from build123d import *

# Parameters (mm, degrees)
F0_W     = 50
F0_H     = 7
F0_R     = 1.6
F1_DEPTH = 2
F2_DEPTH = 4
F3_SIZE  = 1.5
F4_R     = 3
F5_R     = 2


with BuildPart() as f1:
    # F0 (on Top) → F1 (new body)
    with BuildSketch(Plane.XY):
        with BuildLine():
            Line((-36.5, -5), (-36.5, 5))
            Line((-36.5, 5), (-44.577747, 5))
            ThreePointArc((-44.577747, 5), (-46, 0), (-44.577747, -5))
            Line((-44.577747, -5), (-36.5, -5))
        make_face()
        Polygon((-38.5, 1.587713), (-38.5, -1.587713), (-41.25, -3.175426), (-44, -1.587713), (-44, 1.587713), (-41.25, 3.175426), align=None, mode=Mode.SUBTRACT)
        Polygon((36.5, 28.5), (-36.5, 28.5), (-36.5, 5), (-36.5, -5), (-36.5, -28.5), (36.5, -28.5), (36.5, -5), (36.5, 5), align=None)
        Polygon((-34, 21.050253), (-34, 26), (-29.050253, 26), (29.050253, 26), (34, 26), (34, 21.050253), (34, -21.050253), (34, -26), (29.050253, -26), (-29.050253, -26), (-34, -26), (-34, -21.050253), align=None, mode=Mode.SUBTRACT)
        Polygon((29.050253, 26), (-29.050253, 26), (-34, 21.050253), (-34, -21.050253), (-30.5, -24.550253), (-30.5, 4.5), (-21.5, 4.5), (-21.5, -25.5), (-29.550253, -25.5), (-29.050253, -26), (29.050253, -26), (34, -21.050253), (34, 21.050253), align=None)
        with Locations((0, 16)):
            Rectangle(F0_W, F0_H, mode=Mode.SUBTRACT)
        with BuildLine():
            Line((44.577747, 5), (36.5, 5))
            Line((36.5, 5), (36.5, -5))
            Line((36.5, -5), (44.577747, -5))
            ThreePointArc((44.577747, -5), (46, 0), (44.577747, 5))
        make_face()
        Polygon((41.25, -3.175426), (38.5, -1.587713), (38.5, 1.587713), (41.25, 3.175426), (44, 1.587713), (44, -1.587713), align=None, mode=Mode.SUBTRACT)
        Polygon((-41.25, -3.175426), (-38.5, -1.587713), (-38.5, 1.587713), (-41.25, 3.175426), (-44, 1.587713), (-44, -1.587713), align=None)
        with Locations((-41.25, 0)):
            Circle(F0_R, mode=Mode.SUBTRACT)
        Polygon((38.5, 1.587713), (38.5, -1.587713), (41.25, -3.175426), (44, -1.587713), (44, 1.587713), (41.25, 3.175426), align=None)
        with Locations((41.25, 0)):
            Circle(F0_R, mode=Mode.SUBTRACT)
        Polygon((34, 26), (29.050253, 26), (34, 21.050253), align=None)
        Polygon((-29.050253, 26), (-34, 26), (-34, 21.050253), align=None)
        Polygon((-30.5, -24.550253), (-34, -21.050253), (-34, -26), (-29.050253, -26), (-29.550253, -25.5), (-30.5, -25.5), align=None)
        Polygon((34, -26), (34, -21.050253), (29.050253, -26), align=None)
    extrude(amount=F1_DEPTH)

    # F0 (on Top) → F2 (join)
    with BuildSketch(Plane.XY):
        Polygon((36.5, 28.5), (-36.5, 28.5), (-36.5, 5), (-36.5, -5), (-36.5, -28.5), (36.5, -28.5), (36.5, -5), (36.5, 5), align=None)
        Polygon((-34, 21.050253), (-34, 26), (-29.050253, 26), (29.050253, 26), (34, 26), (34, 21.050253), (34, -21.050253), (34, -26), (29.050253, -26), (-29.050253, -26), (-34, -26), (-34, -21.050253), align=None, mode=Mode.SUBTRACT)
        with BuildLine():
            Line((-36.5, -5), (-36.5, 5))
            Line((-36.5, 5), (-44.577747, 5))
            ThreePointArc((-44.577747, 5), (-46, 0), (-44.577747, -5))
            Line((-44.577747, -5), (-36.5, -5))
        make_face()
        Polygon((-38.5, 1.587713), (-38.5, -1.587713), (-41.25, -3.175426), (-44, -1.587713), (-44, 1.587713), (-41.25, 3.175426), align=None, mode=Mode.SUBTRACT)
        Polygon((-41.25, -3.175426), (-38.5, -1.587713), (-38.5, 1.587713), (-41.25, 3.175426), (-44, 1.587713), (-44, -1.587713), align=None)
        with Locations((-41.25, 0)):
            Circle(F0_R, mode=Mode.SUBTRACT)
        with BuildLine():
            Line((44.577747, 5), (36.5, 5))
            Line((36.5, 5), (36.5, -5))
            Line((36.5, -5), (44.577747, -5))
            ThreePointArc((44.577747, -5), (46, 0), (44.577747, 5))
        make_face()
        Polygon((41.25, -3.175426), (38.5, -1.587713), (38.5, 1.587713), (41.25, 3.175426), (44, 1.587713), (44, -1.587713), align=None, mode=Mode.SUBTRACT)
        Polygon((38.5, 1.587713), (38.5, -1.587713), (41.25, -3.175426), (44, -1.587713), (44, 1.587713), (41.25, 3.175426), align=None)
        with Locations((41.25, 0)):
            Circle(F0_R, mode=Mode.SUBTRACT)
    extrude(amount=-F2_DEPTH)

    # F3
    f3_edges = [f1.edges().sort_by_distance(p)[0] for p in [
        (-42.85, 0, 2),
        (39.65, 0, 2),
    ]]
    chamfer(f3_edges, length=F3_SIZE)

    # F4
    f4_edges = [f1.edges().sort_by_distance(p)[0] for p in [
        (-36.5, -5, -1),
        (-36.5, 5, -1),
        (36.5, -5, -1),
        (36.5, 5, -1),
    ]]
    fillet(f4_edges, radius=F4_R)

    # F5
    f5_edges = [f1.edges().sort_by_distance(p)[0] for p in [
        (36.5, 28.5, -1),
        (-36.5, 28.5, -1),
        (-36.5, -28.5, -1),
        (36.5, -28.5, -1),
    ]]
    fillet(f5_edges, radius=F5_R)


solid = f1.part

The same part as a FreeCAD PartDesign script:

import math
import FreeCAD as App
import Part
import Sketcher


def edges_at(feature, points):
    """Names of the edges that pass closest to the given points."""
    edges = feature.Shape.Edges
    near = lambda p: min(range(len(edges)), key=lambda i: edges[i].distToShape(Part.Vertex(*p))[0])
    return sorted({f"Edge{near(p) + 1}" for p in points})


def add_polygon(sketch, points):
    """Adds a closed chain of lines whose ends are joined by coincident constraints."""
    first, n = sketch.GeometryCount, len(points)
    for a, b in zip(points, points[1:] + points[:1]):
        sketch.addGeometry(Part.LineSegment(App.Vector(*a, 0), App.Vector(*b, 0)), False)
    for i in range(n):
        sketch.addConstraint(Sketcher.Constraint("Coincident", first + i, 2, first + (i + 1) % n, 1))

doc = App.newDocument("Part")
params = doc.addObject("Spreadsheet::Sheet", "Params")
for row, (alias, value) in enumerate([
    ("sketch1_diameter", "3.2 mm"),
    ("sketch1_radius", "9.499999 mm"),
    ("sketch1_width", "73 mm"),
    ("sketch1_width2", "9 mm"),
    ("sketch1_width3", "50 mm"),
    ("pad1_length", "2 mm"),
    ("sketch2_diameter", "3.2 mm"),
    ("sketch2_radius", "9.499999 mm"),
    ("sketch2_width", "73 mm"),
    ("sketch2_width2", "68 mm"),
    ("sketch2_height", "52 mm"),
    ("pad2_length", "4 mm"),
    ("chamfer_size", "1.5 mm"),
    ("fillet_radius", "3 mm"),
    ("fillet2_radius", "2 mm"),
], start=1):
    params.set(f"A{row}", alias)
    params.set(f"B{row}", "=" + value)
    params.setAlias(f"B{row}", alias)

body = doc.addObject("PartDesign::Body", "Body")

# Sketch on XY plane
sketch1 = doc.addObject("Sketcher::SketchObject", "Sketch")
body.addObject(sketch1)
sketch1.AttachmentSupport = (doc.XY_Plane, [""])
sketch1.MapMode = "FlatFace"
sketch1.addGeometry(Part.LineSegment(App.Vector(-44.6, -5, 0), App.Vector(-36.5, -5, 0)), False)  # 0
sketch1.addGeometry(Part.LineSegment(App.Vector(-36.5, -5, 0), App.Vector(-36.5, -28.5, 0)), False)  # 1
sketch1.addGeometry(Part.LineSegment(App.Vector(-36.5, -28.5, 0), App.Vector(36.5, -28.5, 0)), False)  # 2
sketch1.addGeometry(Part.LineSegment(App.Vector(36.5, -28.5, 0), App.Vector(36.5, -5, 0)), False)  # 3
sketch1.addGeometry(Part.LineSegment(App.Vector(36.5, -5, 0), App.Vector(44.6, -5, 0)), False)  # 4
sketch1.addGeometry(Part.ArcOfCircle(Part.Circle(App.Vector(36.5, 0, 0), App.Vector(0, 0, 1), 9.5), math.radians(-32), math.radians(32)), False)  # 5
sketch1.addGeometry(Part.LineSegment(App.Vector(44.6, 5, 0), App.Vector(36.5, 5, 0)), False)  # 6
sketch1.addGeometry(Part.LineSegment(App.Vector(36.5, 5, 0), App.Vector(36.5, 28.5, 0)), False)  # 7
sketch1.addGeometry(Part.LineSegment(App.Vector(36.5, 28.5, 0), App.Vector(-36.5, 28.5, 0)), False)  # 8
sketch1.addGeometry(Part.LineSegment(App.Vector(-36.5, 28.5, 0), App.Vector(-36.5, 5, 0)), False)  # 9
sketch1.addGeometry(Part.LineSegment(App.Vector(-36.5, 5, 0), App.Vector(-44.6, 5, 0)), False)  # 10
sketch1.addGeometry(Part.ArcOfCircle(Part.Circle(App.Vector(-36.5, 0, 0), App.Vector(0, 0, 1), 9.5), math.radians(148), math.radians(212)), False)  # 11
add_polygon(sketch1, [(-30.5, 4.5), (-21.5, 4.5), (-21.5, -25.5), (-30.5, -25.5)])  # lines 12-15
sketch1.addGeometry(Part.Circle(App.Vector(-41.2, 0, 0), App.Vector(0, 0, 1), 1.6), False)  # 16
sketch1.addGeometry(Part.Circle(App.Vector(41.2, 0, 0), App.Vector(0, 0, 1), 1.6), False)  # 17
add_polygon(sketch1, [(25, 12.5), (-25, 12.5), (-25, 19.5), (25, 19.5)])  # lines 18-21
sketch1.addConstraint(Sketcher.Constraint("Coincident", 0, 2, 1, 1))
sketch1.addConstraint(Sketcher.Constraint("Coincident", 1, 2, 2, 1))
sketch1.addConstraint(Sketcher.Constraint("Coincident", 2, 2, 3, 1))
sketch1.addConstraint(Sketcher.Constraint("Coincident", 3, 2, 4, 1))
sketch1.addConstraint(Sketcher.Constraint("Coincident", 4, 2, 5, 1))
sketch1.addConstraint(Sketcher.Constraint("Coincident", 5, 2, 6, 1))
sketch1.addConstraint(Sketcher.Constraint("Coincident", 6, 2, 7, 1))
sketch1.addConstraint(Sketcher.Constraint("Coincident", 7, 2, 8, 1))
sketch1.addConstraint(Sketcher.Constraint("Coincident", 8, 2, 9, 1))
sketch1.addConstraint(Sketcher.Constraint("Coincident", 9, 2, 10, 1))
sketch1.addConstraint(Sketcher.Constraint("Coincident", 10, 2, 11, 1))
sketch1.addConstraint(Sketcher.Constraint("Coincident", 11, 2, 0, 1))
sketch1.addConstraint(Sketcher.Constraint("Horizontal", 0))
sketch1.addConstraint(Sketcher.Constraint("Vertical", 1))
sketch1.addConstraint(Sketcher.Constraint("Horizontal", 2))
sketch1.addConstraint(Sketcher.Constraint("Vertical", 3))
sketch1.addConstraint(Sketcher.Constraint("Horizontal", 4))
sketch1.addConstraint(Sketcher.Constraint("Horizontal", 6))
sketch1.addConstraint(Sketcher.Constraint("Vertical", 7))
sketch1.addConstraint(Sketcher.Constraint("Horizontal", 8))
sketch1.addConstraint(Sketcher.Constraint("Vertical", 9))
sketch1.addConstraint(Sketcher.Constraint("Horizontal", 10))
sketch1.addConstraint(Sketcher.Constraint("Horizontal", 12))
sketch1.addConstraint(Sketcher.Constraint("Vertical", 13))
sketch1.addConstraint(Sketcher.Constraint("Horizontal", 14))
sketch1.addConstraint(Sketcher.Constraint("Vertical", 15))
sketch1.addConstraint(Sketcher.Constraint("Horizontal", 18))
sketch1.addConstraint(Sketcher.Constraint("Vertical", 19))
sketch1.addConstraint(Sketcher.Constraint("Horizontal", 20))
sketch1.addConstraint(Sketcher.Constraint("Vertical", 21))
sketch1.addConstraint(Sketcher.Constraint("Equal", 5, 11))
sketch1.addConstraint(Sketcher.Constraint("Equal", 16, 17))
sketch1.addConstraint(Sketcher.Constraint("Symmetric", 5, 3, 11, 3, -1, 1))
sketch1.addConstraint(Sketcher.Constraint("Symmetric", 16, 3, 17, 3, -1, 1))
sketch1.addConstraint(Sketcher.Constraint("Symmetric", 0, 2, 6, 2, -1, 1))
sketch1.addConstraint(Sketcher.Constraint("Symmetric", 2, 2, 8, 2, -1, 1))
sketch1.addConstraint(Sketcher.Constraint("Symmetric", 0, 2, 3, 2, -2))
sketch1.addConstraint(Sketcher.Constraint("Symmetric", 5, 2, 10, 2, -2))
sketch1.addConstraint(Sketcher.Constraint("PointOnObject", 16, 3, -1))
sketch1.addConstraint(Sketcher.Constraint("Vertical", 11, 3, 0, 2))
sketch1.addConstraint(Sketcher.Constraint("Diameter", 16, 3.2))
sketch1.addConstraint(Sketcher.Constraint("Radius", 5, 9.499999))
sketch1.addConstraint(Sketcher.Constraint("DistanceX", 2, 1, 2, 2, 73.0))
sketch1.addConstraint(Sketcher.Constraint("DistanceX", 12, 1, 12, 2, 9.0))
sketch1.addConstraint(Sketcher.Constraint("DistanceX", 18, 2, 18, 1, 50.0))
sketch1.addConstraint(Sketcher.Constraint("DistanceY", 13, 2, 13, 1, 30.0))
sketch1.addConstraint(Sketcher.Constraint("DistanceY", 19, 1, 19, 2, 7.0))
sketch1.addConstraint(Sketcher.Constraint("DistanceY", 1, 2, 1, 1, 23.5))
sketch1.addConstraint(Sketcher.Constraint("DistanceY", 0, 2, -1, 1, 5.0))
sketch1.addConstraint(Sketcher.Constraint("DistanceX", 18, 2, -1, 1, 25.0))
sketch1.addConstraint(Sketcher.Constraint("DistanceX", 9, 2, 12, 2, 15.0))
sketch1.addConstraint(Sketcher.Constraint("DistanceY", 1, 2, 13, 2, 3.0))
sketch1.addConstraint(Sketcher.Constraint("DistanceY", 12, 2, 18, 2, 8.0))
sketch1.addConstraint(Sketcher.Constraint("DistanceX", 16, 3, 17, 3, 82.5))
sketch1.setExpression("Constraints[48]", "Params.sketch1_diameter")
sketch1.setExpression("Constraints[49]", "Params.sketch1_radius")
sketch1.setExpression("Constraints[50]", "Params.sketch1_width")
sketch1.setExpression("Constraints[51]", "Params.sketch1_width2")
sketch1.setExpression("Constraints[52]", "Params.sketch1_width3")
pad1 = doc.addObject("PartDesign::Pad", "Pad")
body.addObject(pad1)
pad1.Profile = sketch1
pad1.setExpression("Length", "Params.pad1_length")

# Sketch on XY plane
sketch2 = doc.addObject("Sketcher::SketchObject", "Sketch001")
body.addObject(sketch2)
sketch2.AttachmentSupport = (doc.XY_Plane, [""])
sketch2.MapMode = "FlatFace"
sketch2.addGeometry(Part.LineSegment(App.Vector(36.5, 28.5, 0), App.Vector(-36.5, 28.5, 0)), False)  # 0
sketch2.addGeometry(Part.LineSegment(App.Vector(-36.5, 28.5, 0), App.Vector(-36.5, 5, 0)), False)  # 1
sketch2.addGeometry(Part.LineSegment(App.Vector(-36.5, 5, 0), App.Vector(-44.6, 5, 0)), False)  # 2
sketch2.addGeometry(Part.ArcOfCircle(Part.Circle(App.Vector(-36.5, 0, 0), App.Vector(0, 0, 1), 9.5), math.radians(148), math.radians(212)), False)  # 3
sketch2.addGeometry(Part.LineSegment(App.Vector(-44.6, -5, 0), App.Vector(-36.5, -5, 0)), False)  # 4
sketch2.addGeometry(Part.LineSegment(App.Vector(-36.5, -5, 0), App.Vector(-36.5, -28.5, 0)), False)  # 5
sketch2.addGeometry(Part.LineSegment(App.Vector(-36.5, -28.5, 0), App.Vector(36.5, -28.5, 0)), False)  # 6
sketch2.addGeometry(Part.LineSegment(App.Vector(36.5, -28.5, 0), App.Vector(36.5, -5, 0)), False)  # 7
sketch2.addGeometry(Part.LineSegment(App.Vector(36.5, -5, 0), App.Vector(44.6, -5, 0)), False)  # 8
sketch2.addGeometry(Part.ArcOfCircle(Part.Circle(App.Vector(36.5, 0, 0), App.Vector(0, 0, 1), 9.5), math.radians(-32), math.radians(32)), False)  # 9
sketch2.addGeometry(Part.LineSegment(App.Vector(44.6, 5, 0), App.Vector(36.5, 5, 0)), False)  # 10
sketch2.addGeometry(Part.LineSegment(App.Vector(36.5, 5, 0), App.Vector(36.5, 28.5, 0)), False)  # 11
sketch2.addGeometry(Part.Circle(App.Vector(-41.2, 0, 0), App.Vector(0, 0, 1), 1.6), False)  # 12
add_polygon(sketch2, [(-34, -26), (-34, 26), (34, 26), (34, -26)])  # lines 13-16
sketch2.addGeometry(Part.Circle(App.Vector(41.2, 0, 0), App.Vector(0, 0, 1), 1.6), False)  # 17
sketch2.addConstraint(Sketcher.Constraint("Coincident", 0, 2, 1, 1))
sketch2.addConstraint(Sketcher.Constraint("Coincident", 1, 2, 2, 1))
sketch2.addConstraint(Sketcher.Constraint("Coincident", 2, 2, 3, 1))
sketch2.addConstraint(Sketcher.Constraint("Coincident", 3, 2, 4, 1))
sketch2.addConstraint(Sketcher.Constraint("Coincident", 4, 2, 5, 1))
sketch2.addConstraint(Sketcher.Constraint("Coincident", 5, 2, 6, 1))
sketch2.addConstraint(Sketcher.Constraint("Coincident", 6, 2, 7, 1))
sketch2.addConstraint(Sketcher.Constraint("Coincident", 7, 2, 8, 1))
sketch2.addConstraint(Sketcher.Constraint("Coincident", 8, 2, 9, 1))
sketch2.addConstraint(Sketcher.Constraint("Coincident", 9, 2, 10, 1))
sketch2.addConstraint(Sketcher.Constraint("Coincident", 10, 2, 11, 1))
sketch2.addConstraint(Sketcher.Constraint("Coincident", 11, 2, 0, 1))
sketch2.addConstraint(Sketcher.Constraint("Horizontal", 0))
sketch2.addConstraint(Sketcher.Constraint("Vertical", 1))
sketch2.addConstraint(Sketcher.Constraint("Horizontal", 2))
sketch2.addConstraint(Sketcher.Constraint("Horizontal", 4))
sketch2.addConstraint(Sketcher.Constraint("Vertical", 5))
sketch2.addConstraint(Sketcher.Constraint("Horizontal", 6))
sketch2.addConstraint(Sketcher.Constraint("Vertical", 7))
sketch2.addConstraint(Sketcher.Constraint("Horizontal", 8))
sketch2.addConstraint(Sketcher.Constraint("Horizontal", 10))
sketch2.addConstraint(Sketcher.Constraint("Vertical", 11))
sketch2.addConstraint(Sketcher.Constraint("Vertical", 13))
sketch2.addConstraint(Sketcher.Constraint("Horizontal", 14))
sketch2.addConstraint(Sketcher.Constraint("Vertical", 15))
sketch2.addConstraint(Sketcher.Constraint("Horizontal", 16))
sketch2.addConstraint(Sketcher.Constraint("Equal", 3, 9))
sketch2.addConstraint(Sketcher.Constraint("Equal", 12, 17))
sketch2.addConstraint(Sketcher.Constraint("Symmetric", 3, 3, 9, 3, -1, 1))
sketch2.addConstraint(Sketcher.Constraint("Symmetric", 12, 3, 17, 3, -1, 1))
sketch2.addConstraint(Sketcher.Constraint("Symmetric", 0, 2, 6, 2, -1, 1))
sketch2.addConstraint(Sketcher.Constraint("Symmetric", 4, 2, 10, 2, -1, 1))
sketch2.addConstraint(Sketcher.Constraint("Symmetric", 13, 2, 15, 2, -1, 1))
sketch2.addConstraint(Sketcher.Constraint("Symmetric", 4, 2, 7, 2, -2))
sketch2.addConstraint(Sketcher.Constraint("Symmetric", 2, 2, 9, 2, -2))
sketch2.addConstraint(Sketcher.Constraint("PointOnObject", 12, 3, -1))
sketch2.addConstraint(Sketcher.Constraint("Vertical", 3, 3, 0, 2))
sketch2.addConstraint(Sketcher.Constraint("Diameter", 12, 3.2))
sketch2.addConstraint(Sketcher.Constraint("Radius", 3, 9.499999))
sketch2.addConstraint(Sketcher.Constraint("DistanceX", 0, 2, 0, 1, 73.0))
sketch2.addConstraint(Sketcher.Constraint("DistanceX", 14, 1, 14, 2, 68.0))
sketch2.addConstraint(Sketcher.Constraint("DistanceY", 13, 1, 13, 2, 52.0))
sketch2.addConstraint(Sketcher.Constraint("DistanceY", 1, 2, 1, 1, 23.5))
sketch2.addConstraint(Sketcher.Constraint("DistanceY", -1, 1, 1, 2, 5.0))
sketch2.addConstraint(Sketcher.Constraint("DistanceX", 12, 3, 17, 3, 82.5))
sketch2.setExpression("Constraints[41]", "Params.sketch2_diameter")
sketch2.setExpression("Constraints[42]", "Params.sketch2_radius")
sketch2.setExpression("Constraints[43]", "Params.sketch2_width")
sketch2.setExpression("Constraints[44]", "Params.sketch2_width2")
sketch2.setExpression("Constraints[45]", "Params.sketch2_height")
pad2 = doc.addObject("PartDesign::Pad", "Pad001")
body.addObject(pad2)
pad2.Profile = sketch2
pad2.setExpression("Length", "Params.pad2_length")
pad2.Reversed = True
doc.recompute()

chamfer = doc.addObject("PartDesign::Chamfer", "Chamfer")
body.addObject(chamfer)
chamfer.Base = (pad2, edges_at(pad2, [(-42.85, 0, 2), (39.65, 0, 2)]))
chamfer.setExpression("Size", "Params.chamfer_size")
doc.recompute()

fillet = doc.addObject("PartDesign::Fillet", "Fillet")
body.addObject(fillet)
fillet.Base = (chamfer, edges_at(chamfer, [
    (-36.5, -5, -1),
    (-36.5, 5, -1),
    (36.5, -5, -1),
    (36.5, 5, -1),
]))
fillet.setExpression("Radius", "Params.fillet_radius")
doc.recompute()

fillet2 = doc.addObject("PartDesign::Fillet", "Fillet001")
body.addObject(fillet2)
fillet2.Base = (fillet, edges_at(fillet, [
    (36.5, 28.5, -1),
    (-36.5, 28.5, -1),
    (-36.5, -28.5, -1),
    (36.5, -28.5, -1),
]))
fillet2.setExpression("Radius", "Params.fillet2_radius")

doc.recompute()
